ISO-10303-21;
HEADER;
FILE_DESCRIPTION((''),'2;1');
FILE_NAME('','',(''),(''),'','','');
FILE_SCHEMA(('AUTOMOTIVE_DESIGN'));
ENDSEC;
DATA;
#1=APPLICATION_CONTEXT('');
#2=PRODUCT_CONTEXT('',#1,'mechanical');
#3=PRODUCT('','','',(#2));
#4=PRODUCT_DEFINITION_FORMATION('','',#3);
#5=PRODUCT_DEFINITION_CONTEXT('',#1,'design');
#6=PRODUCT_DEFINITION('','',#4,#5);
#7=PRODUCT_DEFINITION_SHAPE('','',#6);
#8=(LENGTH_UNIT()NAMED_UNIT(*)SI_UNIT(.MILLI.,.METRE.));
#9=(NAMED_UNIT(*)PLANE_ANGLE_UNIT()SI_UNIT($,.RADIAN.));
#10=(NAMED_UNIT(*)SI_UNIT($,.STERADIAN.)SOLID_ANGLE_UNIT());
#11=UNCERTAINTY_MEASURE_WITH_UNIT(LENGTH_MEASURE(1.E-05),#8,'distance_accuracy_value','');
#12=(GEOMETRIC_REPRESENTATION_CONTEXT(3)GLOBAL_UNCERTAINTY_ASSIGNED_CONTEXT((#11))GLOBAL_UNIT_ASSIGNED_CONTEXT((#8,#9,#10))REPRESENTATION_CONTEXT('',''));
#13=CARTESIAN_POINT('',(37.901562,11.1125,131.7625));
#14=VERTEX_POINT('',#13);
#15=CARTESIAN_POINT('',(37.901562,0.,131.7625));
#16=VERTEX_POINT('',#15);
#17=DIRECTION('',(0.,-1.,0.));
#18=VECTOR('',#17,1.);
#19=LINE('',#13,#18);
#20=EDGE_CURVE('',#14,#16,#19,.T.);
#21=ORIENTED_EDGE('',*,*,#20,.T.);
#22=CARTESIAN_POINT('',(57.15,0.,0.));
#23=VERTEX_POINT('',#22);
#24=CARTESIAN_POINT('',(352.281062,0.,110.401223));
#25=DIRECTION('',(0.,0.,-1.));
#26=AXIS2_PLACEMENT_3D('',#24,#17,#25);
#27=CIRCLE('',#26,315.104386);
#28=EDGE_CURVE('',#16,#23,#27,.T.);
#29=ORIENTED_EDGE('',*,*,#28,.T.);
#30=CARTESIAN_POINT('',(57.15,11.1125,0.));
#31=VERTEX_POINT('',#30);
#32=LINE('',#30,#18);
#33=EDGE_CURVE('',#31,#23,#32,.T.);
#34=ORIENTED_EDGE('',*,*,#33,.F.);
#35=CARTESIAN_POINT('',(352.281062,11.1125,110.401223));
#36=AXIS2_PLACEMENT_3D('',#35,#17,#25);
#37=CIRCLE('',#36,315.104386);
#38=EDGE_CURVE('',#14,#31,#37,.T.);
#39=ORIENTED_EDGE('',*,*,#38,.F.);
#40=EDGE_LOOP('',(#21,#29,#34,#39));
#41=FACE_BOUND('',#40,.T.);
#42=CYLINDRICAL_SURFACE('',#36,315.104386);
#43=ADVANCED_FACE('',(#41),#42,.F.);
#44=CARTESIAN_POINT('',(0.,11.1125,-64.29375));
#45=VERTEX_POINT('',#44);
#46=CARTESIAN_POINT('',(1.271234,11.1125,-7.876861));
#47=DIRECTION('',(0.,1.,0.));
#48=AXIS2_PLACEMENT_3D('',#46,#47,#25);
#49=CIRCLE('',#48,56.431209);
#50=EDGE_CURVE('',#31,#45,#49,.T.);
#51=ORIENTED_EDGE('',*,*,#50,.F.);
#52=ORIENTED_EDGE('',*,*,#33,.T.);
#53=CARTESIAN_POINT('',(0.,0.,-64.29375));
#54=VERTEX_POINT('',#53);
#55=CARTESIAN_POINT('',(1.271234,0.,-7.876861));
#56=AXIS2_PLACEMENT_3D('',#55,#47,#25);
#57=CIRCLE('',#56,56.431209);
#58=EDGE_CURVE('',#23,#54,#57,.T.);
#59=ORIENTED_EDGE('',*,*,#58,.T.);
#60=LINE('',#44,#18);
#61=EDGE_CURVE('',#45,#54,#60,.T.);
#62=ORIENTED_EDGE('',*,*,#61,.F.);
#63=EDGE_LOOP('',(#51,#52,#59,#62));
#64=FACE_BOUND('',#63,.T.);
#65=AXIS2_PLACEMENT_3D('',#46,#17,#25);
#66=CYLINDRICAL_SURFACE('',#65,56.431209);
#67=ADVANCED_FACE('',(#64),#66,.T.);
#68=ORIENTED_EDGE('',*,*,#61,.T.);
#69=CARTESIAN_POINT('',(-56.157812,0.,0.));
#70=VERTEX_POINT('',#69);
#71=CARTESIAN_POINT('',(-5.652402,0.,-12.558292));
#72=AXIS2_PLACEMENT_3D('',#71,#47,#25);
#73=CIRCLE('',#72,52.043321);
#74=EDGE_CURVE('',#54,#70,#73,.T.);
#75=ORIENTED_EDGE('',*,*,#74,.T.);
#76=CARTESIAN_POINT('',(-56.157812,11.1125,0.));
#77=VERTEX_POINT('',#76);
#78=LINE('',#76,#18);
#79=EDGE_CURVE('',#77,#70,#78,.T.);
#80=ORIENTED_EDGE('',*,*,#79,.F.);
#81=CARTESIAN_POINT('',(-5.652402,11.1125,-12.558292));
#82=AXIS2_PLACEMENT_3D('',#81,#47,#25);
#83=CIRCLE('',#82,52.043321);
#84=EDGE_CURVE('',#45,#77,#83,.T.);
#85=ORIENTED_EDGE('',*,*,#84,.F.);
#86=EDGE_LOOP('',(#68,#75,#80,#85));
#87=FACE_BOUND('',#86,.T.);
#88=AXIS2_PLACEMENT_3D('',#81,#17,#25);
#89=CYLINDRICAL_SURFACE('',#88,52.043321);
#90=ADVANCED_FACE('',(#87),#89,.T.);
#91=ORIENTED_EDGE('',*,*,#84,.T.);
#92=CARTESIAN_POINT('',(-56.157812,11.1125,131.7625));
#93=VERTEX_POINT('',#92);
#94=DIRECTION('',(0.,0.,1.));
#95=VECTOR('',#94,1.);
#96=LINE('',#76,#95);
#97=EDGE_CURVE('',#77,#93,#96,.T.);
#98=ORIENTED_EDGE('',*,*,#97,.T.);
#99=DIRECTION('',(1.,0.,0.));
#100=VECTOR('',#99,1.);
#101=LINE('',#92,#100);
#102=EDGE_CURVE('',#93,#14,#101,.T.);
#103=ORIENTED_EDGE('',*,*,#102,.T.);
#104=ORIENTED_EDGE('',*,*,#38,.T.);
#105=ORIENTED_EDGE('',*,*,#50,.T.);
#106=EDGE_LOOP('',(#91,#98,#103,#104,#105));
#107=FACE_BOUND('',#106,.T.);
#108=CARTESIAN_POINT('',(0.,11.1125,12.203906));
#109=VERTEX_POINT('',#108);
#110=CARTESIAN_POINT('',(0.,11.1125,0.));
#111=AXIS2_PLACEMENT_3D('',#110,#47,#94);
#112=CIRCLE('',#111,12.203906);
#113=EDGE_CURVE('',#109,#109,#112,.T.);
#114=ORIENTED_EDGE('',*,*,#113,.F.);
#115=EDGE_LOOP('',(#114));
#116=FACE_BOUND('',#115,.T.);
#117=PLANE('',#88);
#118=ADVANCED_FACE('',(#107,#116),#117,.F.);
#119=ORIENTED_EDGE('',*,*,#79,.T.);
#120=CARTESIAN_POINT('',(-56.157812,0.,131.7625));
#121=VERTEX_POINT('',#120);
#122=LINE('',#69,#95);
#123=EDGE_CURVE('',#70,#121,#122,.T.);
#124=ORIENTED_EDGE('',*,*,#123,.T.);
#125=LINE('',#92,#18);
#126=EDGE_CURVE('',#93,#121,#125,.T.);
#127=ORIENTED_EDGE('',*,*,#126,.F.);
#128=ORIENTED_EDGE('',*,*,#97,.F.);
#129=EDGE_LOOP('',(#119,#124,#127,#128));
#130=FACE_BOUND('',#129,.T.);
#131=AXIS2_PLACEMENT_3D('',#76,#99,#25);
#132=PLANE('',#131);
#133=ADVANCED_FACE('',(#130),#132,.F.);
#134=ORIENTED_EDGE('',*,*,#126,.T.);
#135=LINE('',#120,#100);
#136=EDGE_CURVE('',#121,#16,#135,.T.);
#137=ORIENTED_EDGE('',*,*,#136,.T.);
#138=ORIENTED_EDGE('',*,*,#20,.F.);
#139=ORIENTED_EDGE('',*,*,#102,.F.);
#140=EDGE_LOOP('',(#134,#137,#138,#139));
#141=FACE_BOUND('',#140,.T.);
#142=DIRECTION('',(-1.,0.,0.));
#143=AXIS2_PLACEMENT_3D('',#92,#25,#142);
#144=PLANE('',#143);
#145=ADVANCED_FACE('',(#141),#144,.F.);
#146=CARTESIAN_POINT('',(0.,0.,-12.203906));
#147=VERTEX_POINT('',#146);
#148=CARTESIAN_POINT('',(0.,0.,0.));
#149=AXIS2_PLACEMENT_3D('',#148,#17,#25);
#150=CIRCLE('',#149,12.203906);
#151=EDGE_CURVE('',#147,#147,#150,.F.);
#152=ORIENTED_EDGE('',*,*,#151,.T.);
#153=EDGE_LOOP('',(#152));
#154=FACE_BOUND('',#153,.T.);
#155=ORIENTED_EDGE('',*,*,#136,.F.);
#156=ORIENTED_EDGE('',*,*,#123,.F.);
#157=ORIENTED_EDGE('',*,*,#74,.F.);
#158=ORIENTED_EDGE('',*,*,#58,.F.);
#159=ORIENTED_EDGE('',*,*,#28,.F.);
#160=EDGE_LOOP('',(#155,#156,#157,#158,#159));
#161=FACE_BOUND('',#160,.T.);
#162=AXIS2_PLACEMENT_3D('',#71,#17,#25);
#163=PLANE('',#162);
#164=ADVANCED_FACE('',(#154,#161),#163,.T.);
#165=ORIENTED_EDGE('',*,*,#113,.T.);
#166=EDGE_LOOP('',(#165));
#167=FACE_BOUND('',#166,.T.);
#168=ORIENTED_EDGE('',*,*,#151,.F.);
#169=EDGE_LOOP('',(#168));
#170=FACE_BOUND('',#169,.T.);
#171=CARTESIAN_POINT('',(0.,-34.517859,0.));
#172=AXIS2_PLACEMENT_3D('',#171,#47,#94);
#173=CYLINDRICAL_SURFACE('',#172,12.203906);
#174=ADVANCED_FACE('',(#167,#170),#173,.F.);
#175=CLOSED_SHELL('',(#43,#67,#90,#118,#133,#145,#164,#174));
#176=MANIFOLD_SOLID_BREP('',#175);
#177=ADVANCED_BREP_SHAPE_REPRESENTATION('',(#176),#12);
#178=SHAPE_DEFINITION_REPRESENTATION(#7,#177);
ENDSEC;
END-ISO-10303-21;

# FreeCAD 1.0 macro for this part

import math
import FreeCAD as App
import Part
import Sketcher
from FreeCAD import Vector
Q = App.Units.Quantity

doc = App.newDocument("Part")
body = doc.addObject("PartDesign::Body", "Body")

# Sketch on XZ plane
sketch1 = body.newObject("Sketcher::SketchObject", "Sketch")
sketch1.AttachmentSupport = (doc.getObject("XZ_Plane"), [""])
sketch1.MapMode = "FlatFace"
sketch1.addGeometry(Part.LineSegment(Vector(-56, 0, 0), Vector(-56, 132, 0)), False)
sketch1.addGeometry(Part.LineSegment(Vector(-56, 132, 0), Vector(38, 132, 0)), False)
sketch1.addGeometry(Part.ArcOfCircle(Part.Circle(Vector(352, 110, 0), Vector(0, 0, 1), 315), math.radians(176), math.radians(201)), False)
sketch1.addGeometry(Part.ArcOfCircle(Part.Circle(Vector(1, -8, 0), Vector(0, 0, 1), 56), math.radians(-91), math.radians(8)), False)
sketch1.addGeometry(Part.ArcOfCircle(Part.Circle(Vector(-6, -13, 0), Vector(0, 0, 1), 52), math.radians(166), math.radians(276)), False)
sketch1.addGeometry(Part.Circle(Vector(0, 0, 0), Vector(0, 0, 1), 8), False)
sketch1.addConstraint(Sketcher.Constraint("Coincident", 0, 2, 1, 1))
sketch1.addConstraint(Sketcher.Constraint("Coincident", 1, 2, 2, 1))
sketch1.addConstraint(Sketcher.Constraint("Coincident", 2, 2, 3, 2))
sketch1.addConstraint(Sketcher.Constraint("Coincident", 3, 1, 4, 2))
sketch1.addConstraint(Sketcher.Constraint("Coincident", 4, 1, 0, 1))
sketch1.addConstraint(Sketcher.Constraint("Vertical", 0))
sketch1.addConstraint(Sketcher.Constraint("Horizontal", 1))
sketch1.addConstraint(Sketcher.Constraint("Coincident", 5, 3, -1, 1))
sketch1.addConstraint(Sketcher.Constraint("PointOnObject", 2, 2, -1))
sketch1.addConstraint(Sketcher.Constraint("PointOnObject", 3, 1, -2))
sketch1.addConstraint(Sketcher.Constraint("PointOnObject", 4, 1, -1))
sketch1.addConstraint(Sketcher.Constraint("Diameter", 5, Q("0.625 in")))
sketch1.addConstraint(Sketcher.Constraint("DistanceX", 1, 1, 1, 2, Q("3.703125 in")))
sketch1.addConstraint(Sketcher.Constraint("DistanceY", 0, 1, 0, 2, Q("5.1875 in")))
sketch1.addConstraint(Sketcher.Constraint("DistanceX", -1, 1, 2, 2, Q("2.25 in")))
sketch1.addConstraint(Sketcher.Constraint("DistanceY", 3, 1, -1, 1, Q("2.53125 in")))
sketch1.addConstraint(Sketcher.Constraint("Radius", 3, 56.431209))
sketch1.addConstraint(Sketcher.Constraint("Radius", 4, 52.043321))
sketch1.addConstraint(Sketcher.Constraint("Radius", 2, 315.104386))
sketch1.addConstraint(Sketcher.Constraint("DistanceX", 4, 3, -1, 1, 5.652402))
pad1 = body.newObject("PartDesign::Pad", "Pad")
pad1.Profile = sketch1
pad1.Length = Q("0.4375 in")
pad1.Reversed = True

# Sketch on XZ plane
sketch2 = body.newObject("Sketcher::SketchObject", "Sketch001")
sketch2.AttachmentSupport = (doc.getObject("XZ_Plane"), [""])
sketch2.MapMode = "FlatFace"
sketch2.AttachmentOffset = App.Placement(Vector(0, 0, -0.4375 * 25.4), App.Rotation())
sketch2.addGeometry(Part.Circle(Vector(0, 0, 0), Vector(0, 0, 1), 12), False)
sketch2.addConstraint(Sketcher.Constraint("Coincident", 0, 3, -1, 1))
sketch2.addConstraint(Sketcher.Constraint("Diameter", 0, 24.407812))
pocket1 = body.newObject("PartDesign::Pocket", "Pocket")
pocket1.Profile = sketch2
pocket1.Length = Q("0.4375 in")
pocket1.Reversed = True

doc.recompute()
